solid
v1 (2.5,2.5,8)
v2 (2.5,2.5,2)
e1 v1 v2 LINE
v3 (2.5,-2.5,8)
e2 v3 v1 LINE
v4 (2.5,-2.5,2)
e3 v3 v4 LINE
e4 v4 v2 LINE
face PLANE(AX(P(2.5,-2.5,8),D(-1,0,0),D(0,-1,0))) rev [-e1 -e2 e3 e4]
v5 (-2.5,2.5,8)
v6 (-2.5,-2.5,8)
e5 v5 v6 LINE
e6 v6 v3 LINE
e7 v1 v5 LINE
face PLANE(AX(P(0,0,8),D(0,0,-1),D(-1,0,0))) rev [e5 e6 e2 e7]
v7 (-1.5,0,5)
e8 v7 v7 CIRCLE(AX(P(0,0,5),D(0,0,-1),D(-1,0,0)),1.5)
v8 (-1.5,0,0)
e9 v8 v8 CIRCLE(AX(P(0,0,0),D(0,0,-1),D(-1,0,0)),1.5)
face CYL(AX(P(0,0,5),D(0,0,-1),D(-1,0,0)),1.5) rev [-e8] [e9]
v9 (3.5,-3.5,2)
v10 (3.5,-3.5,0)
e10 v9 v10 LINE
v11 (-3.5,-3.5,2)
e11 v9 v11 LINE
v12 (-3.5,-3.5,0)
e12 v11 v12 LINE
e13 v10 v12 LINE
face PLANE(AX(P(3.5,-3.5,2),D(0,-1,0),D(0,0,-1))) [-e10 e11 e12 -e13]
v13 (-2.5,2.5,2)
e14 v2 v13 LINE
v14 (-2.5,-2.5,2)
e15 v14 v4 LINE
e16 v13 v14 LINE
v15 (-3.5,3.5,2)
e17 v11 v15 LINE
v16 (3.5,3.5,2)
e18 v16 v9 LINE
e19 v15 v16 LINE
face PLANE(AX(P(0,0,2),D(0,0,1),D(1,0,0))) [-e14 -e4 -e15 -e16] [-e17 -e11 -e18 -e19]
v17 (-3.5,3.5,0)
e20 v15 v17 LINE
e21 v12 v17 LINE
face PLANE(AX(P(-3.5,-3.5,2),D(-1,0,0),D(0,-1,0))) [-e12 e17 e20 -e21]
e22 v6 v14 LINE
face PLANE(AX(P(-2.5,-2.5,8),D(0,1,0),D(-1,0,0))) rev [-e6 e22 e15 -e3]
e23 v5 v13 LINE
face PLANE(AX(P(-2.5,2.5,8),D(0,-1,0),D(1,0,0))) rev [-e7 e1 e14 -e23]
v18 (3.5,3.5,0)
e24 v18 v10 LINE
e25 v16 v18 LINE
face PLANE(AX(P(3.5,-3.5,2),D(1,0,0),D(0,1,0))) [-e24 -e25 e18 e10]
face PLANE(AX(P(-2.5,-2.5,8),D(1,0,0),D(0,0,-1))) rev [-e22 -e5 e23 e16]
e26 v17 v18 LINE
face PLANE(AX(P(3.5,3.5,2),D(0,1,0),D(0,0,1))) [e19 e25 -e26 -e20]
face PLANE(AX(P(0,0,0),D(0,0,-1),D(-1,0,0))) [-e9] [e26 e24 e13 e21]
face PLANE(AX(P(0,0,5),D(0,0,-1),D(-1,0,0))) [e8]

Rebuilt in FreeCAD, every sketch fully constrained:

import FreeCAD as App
import Part
import Sketcher
from FreeCAD import Vector
Q = App.Units.Quantity

doc = App.newDocument("Part")
body = doc.addObject("PartDesign::Body", "Body")

sketch1 = doc.addObject("Sketcher::SketchObject", "Sketch")
body.addObject(sketch1)
sketch1.AttachmentSupport = (doc.XY_Plane, [""])
sketch1.MapMode = "FlatFace"
sketch1.addGeometry(Part.LineSegment(Vector(-2, 2, 0), Vector(-2, -2, 0)), False)
sketch1.addGeometry(Part.LineSegment(Vector(-2, -2, 0), Vector(2, -2, 0)), False)
sketch1.addGeometry(Part.LineSegment(Vector(2, -2, 0), Vector(2, 2, 0)), False)
sketch1.addGeometry(Part.LineSegment(Vector(2, 2, 0), Vector(-2, 2, 0)), False)
sketch1.addConstraint(Sketcher.Constraint("Coincident", 0, 2, 1, 1))
sketch1.addConstraint(Sketcher.Constraint("Coincident", 1, 2, 2, 1))
sketch1.addConstraint(Sketcher.Constraint("Coincident", 2, 2, 3, 1))
sketch1.addConstraint(Sketcher.Constraint("Coincident", 3, 2, 0, 1))
sketch1.addConstraint(Sketcher.Constraint("Vertical", 0))
sketch1.addConstraint(Sketcher.Constraint("Horizontal", 1))
sketch1.addConstraint(Sketcher.Constraint("Vertical", 2))
sketch1.addConstraint(Sketcher.Constraint("Horizontal", 3))
sketch1.addConstraint(Sketcher.Constraint("Symmetric", 0, 2, 2, 2, -1, 1))
sketch1.addConstraint(Sketcher.Constraint("Equal", 3, 0))
sketch1.addConstraint(Sketcher.Constraint("DistanceX", 1, 1, 1, 2, Q("5 mm")))
pad1 = doc.addObject("PartDesign::Pad", "Pad")
body.addObject(pad1)
pad1.Profile = sketch1
pad1.Length = 8

sketch2 = doc.addObject("Sketcher::SketchObject", "Sketch001")
body.addObject(sketch2)
sketch2.AttachmentSupport = (doc.XY_Plane, [""])
sketch2.MapMode = "FlatFace"
sketch2.addGeometry(Part.LineSegment(Vector(4, 4, 0), Vector(4, -4, 0)), False)
sketch2.addGeometry(Part.LineSegment(Vector(4, -4, 0), Vector(-4, -4, 0)), False)
sketch2.addGeometry(Part.LineSegment(Vector(-4, -4, 0), Vector(-4, 4, 0)), False)
sketch2.addGeometry(Part.LineSegment(Vector(-4, 4, 0), Vector(4, 4, 0)), False)
sketch2.addConstraint(Sketcher.Constraint("Coincident", 0, 2, 1, 1))
sketch2.addConstraint(Sketcher.Constraint("Coincident", 1, 2, 2, 1))
sketch2.addConstraint(Sketcher.Constraint("Coincident", 2, 2, 3, 1))
sketch2.addConstraint(Sketcher.Constraint("Coincident", 3, 2, 0, 1))
sketch2.addConstraint(Sketcher.Constraint("Vertical", 0))
sketch2.addConstraint(Sketcher.Constraint("Horizontal", 1))
sketch2.addConstraint(Sketcher.Constraint("Vertical", 2))
sketch2.addConstraint(Sketcher.Constraint("Horizontal", 3))
sketch2.addConstraint(Sketcher.Constraint("Symmetric", 0, 2, 2, 2, -1, 1))
sketch2.addConstraint(Sketcher.Constraint("Equal", 3, 0))
sketch2.addConstraint(Sketcher.Constraint("DistanceX", 1, 2, 1, 1, Q("7 mm")))
pad2 = doc.addObject("PartDesign::Pad", "Pad001")
body.addObject(pad2)
pad2.Profile = sketch2
pad2.Length = 2

sketch3 = doc.addObject("Sketcher::SketchObject", "Sketch002")
body.addObject(sketch3)
sketch3.AttachmentSupport = (doc.XY_Plane, [""])
sketch3.MapMode = "FlatFace"
sketch3.addGeometry(Part.Circle(Vector(0, 0, 0), Vector(0, 0, 1), 1.5), False)
sketch3.addConstraint(Sketcher.Constraint("Coincident", 0, 3, -1, 1))
sketch3.addConstraint(Sketcher.Constraint("Diameter", 0, Q("3 mm")))
pocket1 = doc.addObject("PartDesign::Pocket", "Pocket")
body.addObject(pocket1)
pocket1.Profile = sketch3
pocket1.Length = 5
pocket1.Reversed = True

doc.recompute()
